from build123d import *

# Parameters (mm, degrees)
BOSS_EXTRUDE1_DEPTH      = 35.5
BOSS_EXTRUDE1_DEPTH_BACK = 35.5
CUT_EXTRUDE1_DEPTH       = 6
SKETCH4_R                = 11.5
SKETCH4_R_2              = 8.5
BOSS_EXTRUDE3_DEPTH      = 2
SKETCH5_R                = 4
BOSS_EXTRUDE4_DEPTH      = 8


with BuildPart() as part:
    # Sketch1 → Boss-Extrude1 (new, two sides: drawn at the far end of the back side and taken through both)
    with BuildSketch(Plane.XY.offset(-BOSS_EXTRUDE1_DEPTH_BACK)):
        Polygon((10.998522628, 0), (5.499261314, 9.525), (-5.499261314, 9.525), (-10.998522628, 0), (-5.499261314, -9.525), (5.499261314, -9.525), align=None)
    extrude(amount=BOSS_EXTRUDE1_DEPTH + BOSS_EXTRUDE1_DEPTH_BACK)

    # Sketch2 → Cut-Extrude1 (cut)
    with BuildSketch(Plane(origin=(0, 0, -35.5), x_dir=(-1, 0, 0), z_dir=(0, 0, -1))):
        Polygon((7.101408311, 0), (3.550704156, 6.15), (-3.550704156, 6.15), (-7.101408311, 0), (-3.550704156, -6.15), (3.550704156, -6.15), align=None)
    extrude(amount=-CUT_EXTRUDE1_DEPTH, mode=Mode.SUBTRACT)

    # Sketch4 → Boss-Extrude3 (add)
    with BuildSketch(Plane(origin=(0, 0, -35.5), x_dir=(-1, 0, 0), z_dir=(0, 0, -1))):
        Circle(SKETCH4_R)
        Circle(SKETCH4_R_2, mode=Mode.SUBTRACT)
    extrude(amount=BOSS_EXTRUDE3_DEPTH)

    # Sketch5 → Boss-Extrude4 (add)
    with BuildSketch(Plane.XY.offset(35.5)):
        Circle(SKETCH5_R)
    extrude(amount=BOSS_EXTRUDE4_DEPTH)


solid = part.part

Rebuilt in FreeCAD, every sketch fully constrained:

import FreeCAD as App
import Part
import Sketcher
Q = App.Units.Quantity

doc = App.newDocument("Part")
params = doc.addObject("Spreadsheet::Sheet", "Params")
for row, (alias, value) in enumerate([
    ("pad1_length", "35.5 mm"),
    ("pad1_length2", "35.5 mm"),
    ("pocket1_length", "6 mm"),
    ("sketch3_diameter", "23 mm"),
    ("sketch3_diameter2", "17 mm"),
    ("pad2_length", "2 mm"),
    ("sketch4_diameter", "8 mm"),
    ("pad3_length", "8 mm"),
], start=1):
    params.set(f"A{row}", alias)
    params.set(f"B{row}", "=" + value)
    params.setAlias(f"B{row}", alias)

body = doc.addObject("PartDesign::Body", "Body")

sketch1 = body.newObject("Sketcher::SketchObject", "Sketch")
sketch1.AttachmentSupport = (doc.getObject("XY_Plane"), [""])
sketch1.MapMode = "FlatFace"
sketch1.addGeometry(Part.LineSegment(App.Vector(11, 0, 0), App.Vector(5, 10, 0)), False)
sketch1.addGeometry(Part.LineSegment(App.Vector(5, 10, 0), App.Vector(-5, 10, 0)), False)
sketch1.addGeometry(Part.LineSegment(App.Vector(-5, 10, 0), App.Vector(-11, 0, 0)), False)
sketch1.addGeometry(Part.LineSegment(App.Vector(-11, 0, 0), App.Vector(-5, -10, 0)), False)
sketch1.addGeometry(Part.LineSegment(App.Vector(-5, -10, 0), App.Vector(5, -10, 0)), False)
sketch1.addGeometry(Part.LineSegment(App.Vector(5, -10, 0), App.Vector(11, 0, 0)), False)
sketch1.addConstraint(Sketcher.Constraint("Coincident", 0, 2, 1, 1))
sketch1.addConstraint(Sketcher.Constraint("Coincident", 1, 2, 2, 1))
sketch1.addConstraint(Sketcher.Constraint("Coincident", 2, 2, 3, 1))
sketch1.addConstraint(Sketcher.Constraint("Coincident", 3, 2, 4, 1))
sketch1.addConstraint(Sketcher.Constraint("Coincident", 4, 2, 5, 1))
sketch1.addConstraint(Sketcher.Constraint("Coincident", 5, 2, 0, 1))
sketch1.addConstraint(Sketcher.Constraint("Horizontal", 1))
sketch1.addConstraint(Sketcher.Constraint("Horizontal", 4))
sketch1.addConstraint(Sketcher.Constraint("Symmetric", 0, 2, 3, 2, -1, 1))
sketch1.addConstraint(Sketcher.Constraint("Symmetric", 2, 2, 5, 2, -1, 1))
sketch1.addConstraint(Sketcher.Constraint("PointOnObject", 2, 2, -1))
sketch1.addConstraint(Sketcher.Constraint("Parallel", 2, 5))
sketch1.addConstraint(Sketcher.Constraint("Vertical", 1, 2, 3, 2))
sketch1.addConstraint(Sketcher.Constraint("Angle", 0, Q("120 deg")))
sketch1.addConstraint(Sketcher.Constraint("DistanceY", 3, 2, 1, 2, Q("19.05 mm")))
sketch1.addConstraint(Sketcher.Constraint("DistanceX", 1, 2, 1, 1, Q("10.998523 mm")))
pad1 = body.newObject("PartDesign::Pad", "Pad")
pad1.Profile = sketch1
pad1.Type = "TwoLengths"
pad1.setExpression("Length", "Params.pad1_length")
pad1.setExpression("Length2", "Params.pad1_length2")

sketch2 = body.newObject("Sketcher::SketchObject", "Sketch001")
sketch2.AttachmentSupport = (doc.getObject("XY_Plane"), [""])
sketch2.MapMode = "FlatFace"
sketch2.AttachmentOffset = App.Placement(App.Vector(0, 0, -35.5), App.Rotation())
sketch2.addGeometry(Part.LineSegment(App.Vector(-7, 0, 0), App.Vector(-4, 6, 0)), False)
sketch2.addGeometry(Part.LineSegment(App.Vector(-4, 6, 0), App.Vector(4, 6, 0)), False)
sketch2.addGeometry(Part.LineSegment(App.Vector(4, 6, 0), App.Vector(7, 0, 0)), False)
sketch2.addGeometry(Part.LineSegment(App.Vector(7, 0, 0), App.Vector(4, -6, 0)), False)
sketch2.addGeometry(Part.LineSegment(App.Vector(4, -6, 0), App.Vector(-4, -6, 0)), False)
sketch2.addGeometry(Part.LineSegment(App.Vector(-4, -6, 0), App.Vector(-7, 0, 0)), False)
sketch2.addConstraint(Sketcher.Constraint("Coincident", 0, 2, 1, 1))
sketch2.addConstraint(Sketcher.Constraint("Coincident", 1, 2, 2, 1))
sketch2.addConstraint(Sketcher.Constraint("Coincident", 2, 2, 3, 1))
sketch2.addConstraint(Sketcher.Constraint("Coincident", 3, 2, 4, 1))
sketch2.addConstraint(Sketcher.Constraint("Coincident", 4, 2, 5, 1))
sketch2.addConstraint(Sketcher.Constraint("Coincident", 5, 2, 0, 1))
sketch2.addConstraint(Sketcher.Constraint("Horizontal", 1))
sketch2.addConstraint(Sketcher.Constraint("Horizontal", 4))
sketch2.addConstraint(Sketcher.Constraint("Symmetric", 0, 2, 3, 2, -1, 1))
sketch2.addConstraint(Sketcher.Constraint("Symmetric", 2, 2, 5, 2, -1, 1))
sketch2.addConstraint(Sketcher.Constraint("PointOnObject", 2, 2, -1))
sketch2.addConstraint(Sketcher.Constraint("Parallel", 2, 5))
sketch2.addConstraint(Sketcher.Constraint("Vertical", 1, 2, 3, 2))
sketch2.addConstraint(Sketcher.Constraint("Angle", 0, Q("60 deg")))
sketch2.addConstraint(Sketcher.Constraint("DistanceY", 3, 2, 1, 2, Q("12.3 mm")))
sketch2.addConstraint(Sketcher.Constraint("DistanceX", 1, 1, 1, 2, Q("7.101408 mm")))
pocket1 = body.newObject("PartDesign::Pocket", "Pocket")
pocket1.Profile = sketch2
pocket1.setExpression("Length", "Params.pocket1_length")
pocket1.Reversed = True

sketch3 = body.newObject("Sketcher::SketchObject", "Sketch002")
sketch3.AttachmentSupport = (doc.getObject("XY_Plane"), [""])
sketch3.MapMode = "FlatFace"
sketch3.AttachmentOffset = App.Placement(App.Vector(0, 0, -35.5), App.Rotation())
sketch3.addGeometry(Part.Circle(App.Vector(0, 0, 0), App.Vector(0, 0, 1), 12), False)
sketch3.addGeometry(Part.Circle(App.Vector(0, 0, 0), App.Vector(0, 0, 1), 8), False)
sketch3.addConstraint(Sketcher.Constraint("Coincident", 0, 3, -1, 1))
sketch3.addConstraint(Sketcher.Constraint("Coincident", 1, 3, -1, 1))
sketch3.addConstraint(Sketcher.Constraint("Diameter", 0, Q("23 mm")))
sketch3.addConstraint(Sketcher.Constraint("Diameter", 1, Q("17 mm")))
sketch3.setExpression("Constraints[2]", "Params.sketch3_diameter")
sketch3.setExpression("Constraints[3]", "Params.sketch3_diameter2")
pad2 = body.newObject("PartDesign::Pad", "Pad001")
pad2.Profile = sketch3
pad2.setExpression("Length", "Params.pad2_length")
pad2.Reversed = True

sketch4 = body.newObject("Sketcher::SketchObject", "Sketch003")
sketch4.AttachmentSupport = (doc.getObject("XY_Plane"), [""])
sketch4.MapMode = "FlatFace"
sketch4.AttachmentOffset = App.Placement(App.Vector(0, 0, 35.5), App.Rotation())
sketch4.addGeometry(Part.Circle(App.Vector(0, 0, 0), App.Vector(0, 0, 1), 4), False)
sketch4.addConstraint(Sketcher.Constraint("Coincident", 0, 3, -1, 1))
sketch4.addConstraint(Sketcher.Constraint("Diameter", 0, Q("8 mm")))
sketch4.setExpression("Constraints[1]", "Params.sketch4_diameter")
pad3 = body.newObject("PartDesign::Pad", "Pad002")
pad3.Profile = sketch4
pad3.setExpression("Length", "Params.pad3_length")

doc.recompute()
